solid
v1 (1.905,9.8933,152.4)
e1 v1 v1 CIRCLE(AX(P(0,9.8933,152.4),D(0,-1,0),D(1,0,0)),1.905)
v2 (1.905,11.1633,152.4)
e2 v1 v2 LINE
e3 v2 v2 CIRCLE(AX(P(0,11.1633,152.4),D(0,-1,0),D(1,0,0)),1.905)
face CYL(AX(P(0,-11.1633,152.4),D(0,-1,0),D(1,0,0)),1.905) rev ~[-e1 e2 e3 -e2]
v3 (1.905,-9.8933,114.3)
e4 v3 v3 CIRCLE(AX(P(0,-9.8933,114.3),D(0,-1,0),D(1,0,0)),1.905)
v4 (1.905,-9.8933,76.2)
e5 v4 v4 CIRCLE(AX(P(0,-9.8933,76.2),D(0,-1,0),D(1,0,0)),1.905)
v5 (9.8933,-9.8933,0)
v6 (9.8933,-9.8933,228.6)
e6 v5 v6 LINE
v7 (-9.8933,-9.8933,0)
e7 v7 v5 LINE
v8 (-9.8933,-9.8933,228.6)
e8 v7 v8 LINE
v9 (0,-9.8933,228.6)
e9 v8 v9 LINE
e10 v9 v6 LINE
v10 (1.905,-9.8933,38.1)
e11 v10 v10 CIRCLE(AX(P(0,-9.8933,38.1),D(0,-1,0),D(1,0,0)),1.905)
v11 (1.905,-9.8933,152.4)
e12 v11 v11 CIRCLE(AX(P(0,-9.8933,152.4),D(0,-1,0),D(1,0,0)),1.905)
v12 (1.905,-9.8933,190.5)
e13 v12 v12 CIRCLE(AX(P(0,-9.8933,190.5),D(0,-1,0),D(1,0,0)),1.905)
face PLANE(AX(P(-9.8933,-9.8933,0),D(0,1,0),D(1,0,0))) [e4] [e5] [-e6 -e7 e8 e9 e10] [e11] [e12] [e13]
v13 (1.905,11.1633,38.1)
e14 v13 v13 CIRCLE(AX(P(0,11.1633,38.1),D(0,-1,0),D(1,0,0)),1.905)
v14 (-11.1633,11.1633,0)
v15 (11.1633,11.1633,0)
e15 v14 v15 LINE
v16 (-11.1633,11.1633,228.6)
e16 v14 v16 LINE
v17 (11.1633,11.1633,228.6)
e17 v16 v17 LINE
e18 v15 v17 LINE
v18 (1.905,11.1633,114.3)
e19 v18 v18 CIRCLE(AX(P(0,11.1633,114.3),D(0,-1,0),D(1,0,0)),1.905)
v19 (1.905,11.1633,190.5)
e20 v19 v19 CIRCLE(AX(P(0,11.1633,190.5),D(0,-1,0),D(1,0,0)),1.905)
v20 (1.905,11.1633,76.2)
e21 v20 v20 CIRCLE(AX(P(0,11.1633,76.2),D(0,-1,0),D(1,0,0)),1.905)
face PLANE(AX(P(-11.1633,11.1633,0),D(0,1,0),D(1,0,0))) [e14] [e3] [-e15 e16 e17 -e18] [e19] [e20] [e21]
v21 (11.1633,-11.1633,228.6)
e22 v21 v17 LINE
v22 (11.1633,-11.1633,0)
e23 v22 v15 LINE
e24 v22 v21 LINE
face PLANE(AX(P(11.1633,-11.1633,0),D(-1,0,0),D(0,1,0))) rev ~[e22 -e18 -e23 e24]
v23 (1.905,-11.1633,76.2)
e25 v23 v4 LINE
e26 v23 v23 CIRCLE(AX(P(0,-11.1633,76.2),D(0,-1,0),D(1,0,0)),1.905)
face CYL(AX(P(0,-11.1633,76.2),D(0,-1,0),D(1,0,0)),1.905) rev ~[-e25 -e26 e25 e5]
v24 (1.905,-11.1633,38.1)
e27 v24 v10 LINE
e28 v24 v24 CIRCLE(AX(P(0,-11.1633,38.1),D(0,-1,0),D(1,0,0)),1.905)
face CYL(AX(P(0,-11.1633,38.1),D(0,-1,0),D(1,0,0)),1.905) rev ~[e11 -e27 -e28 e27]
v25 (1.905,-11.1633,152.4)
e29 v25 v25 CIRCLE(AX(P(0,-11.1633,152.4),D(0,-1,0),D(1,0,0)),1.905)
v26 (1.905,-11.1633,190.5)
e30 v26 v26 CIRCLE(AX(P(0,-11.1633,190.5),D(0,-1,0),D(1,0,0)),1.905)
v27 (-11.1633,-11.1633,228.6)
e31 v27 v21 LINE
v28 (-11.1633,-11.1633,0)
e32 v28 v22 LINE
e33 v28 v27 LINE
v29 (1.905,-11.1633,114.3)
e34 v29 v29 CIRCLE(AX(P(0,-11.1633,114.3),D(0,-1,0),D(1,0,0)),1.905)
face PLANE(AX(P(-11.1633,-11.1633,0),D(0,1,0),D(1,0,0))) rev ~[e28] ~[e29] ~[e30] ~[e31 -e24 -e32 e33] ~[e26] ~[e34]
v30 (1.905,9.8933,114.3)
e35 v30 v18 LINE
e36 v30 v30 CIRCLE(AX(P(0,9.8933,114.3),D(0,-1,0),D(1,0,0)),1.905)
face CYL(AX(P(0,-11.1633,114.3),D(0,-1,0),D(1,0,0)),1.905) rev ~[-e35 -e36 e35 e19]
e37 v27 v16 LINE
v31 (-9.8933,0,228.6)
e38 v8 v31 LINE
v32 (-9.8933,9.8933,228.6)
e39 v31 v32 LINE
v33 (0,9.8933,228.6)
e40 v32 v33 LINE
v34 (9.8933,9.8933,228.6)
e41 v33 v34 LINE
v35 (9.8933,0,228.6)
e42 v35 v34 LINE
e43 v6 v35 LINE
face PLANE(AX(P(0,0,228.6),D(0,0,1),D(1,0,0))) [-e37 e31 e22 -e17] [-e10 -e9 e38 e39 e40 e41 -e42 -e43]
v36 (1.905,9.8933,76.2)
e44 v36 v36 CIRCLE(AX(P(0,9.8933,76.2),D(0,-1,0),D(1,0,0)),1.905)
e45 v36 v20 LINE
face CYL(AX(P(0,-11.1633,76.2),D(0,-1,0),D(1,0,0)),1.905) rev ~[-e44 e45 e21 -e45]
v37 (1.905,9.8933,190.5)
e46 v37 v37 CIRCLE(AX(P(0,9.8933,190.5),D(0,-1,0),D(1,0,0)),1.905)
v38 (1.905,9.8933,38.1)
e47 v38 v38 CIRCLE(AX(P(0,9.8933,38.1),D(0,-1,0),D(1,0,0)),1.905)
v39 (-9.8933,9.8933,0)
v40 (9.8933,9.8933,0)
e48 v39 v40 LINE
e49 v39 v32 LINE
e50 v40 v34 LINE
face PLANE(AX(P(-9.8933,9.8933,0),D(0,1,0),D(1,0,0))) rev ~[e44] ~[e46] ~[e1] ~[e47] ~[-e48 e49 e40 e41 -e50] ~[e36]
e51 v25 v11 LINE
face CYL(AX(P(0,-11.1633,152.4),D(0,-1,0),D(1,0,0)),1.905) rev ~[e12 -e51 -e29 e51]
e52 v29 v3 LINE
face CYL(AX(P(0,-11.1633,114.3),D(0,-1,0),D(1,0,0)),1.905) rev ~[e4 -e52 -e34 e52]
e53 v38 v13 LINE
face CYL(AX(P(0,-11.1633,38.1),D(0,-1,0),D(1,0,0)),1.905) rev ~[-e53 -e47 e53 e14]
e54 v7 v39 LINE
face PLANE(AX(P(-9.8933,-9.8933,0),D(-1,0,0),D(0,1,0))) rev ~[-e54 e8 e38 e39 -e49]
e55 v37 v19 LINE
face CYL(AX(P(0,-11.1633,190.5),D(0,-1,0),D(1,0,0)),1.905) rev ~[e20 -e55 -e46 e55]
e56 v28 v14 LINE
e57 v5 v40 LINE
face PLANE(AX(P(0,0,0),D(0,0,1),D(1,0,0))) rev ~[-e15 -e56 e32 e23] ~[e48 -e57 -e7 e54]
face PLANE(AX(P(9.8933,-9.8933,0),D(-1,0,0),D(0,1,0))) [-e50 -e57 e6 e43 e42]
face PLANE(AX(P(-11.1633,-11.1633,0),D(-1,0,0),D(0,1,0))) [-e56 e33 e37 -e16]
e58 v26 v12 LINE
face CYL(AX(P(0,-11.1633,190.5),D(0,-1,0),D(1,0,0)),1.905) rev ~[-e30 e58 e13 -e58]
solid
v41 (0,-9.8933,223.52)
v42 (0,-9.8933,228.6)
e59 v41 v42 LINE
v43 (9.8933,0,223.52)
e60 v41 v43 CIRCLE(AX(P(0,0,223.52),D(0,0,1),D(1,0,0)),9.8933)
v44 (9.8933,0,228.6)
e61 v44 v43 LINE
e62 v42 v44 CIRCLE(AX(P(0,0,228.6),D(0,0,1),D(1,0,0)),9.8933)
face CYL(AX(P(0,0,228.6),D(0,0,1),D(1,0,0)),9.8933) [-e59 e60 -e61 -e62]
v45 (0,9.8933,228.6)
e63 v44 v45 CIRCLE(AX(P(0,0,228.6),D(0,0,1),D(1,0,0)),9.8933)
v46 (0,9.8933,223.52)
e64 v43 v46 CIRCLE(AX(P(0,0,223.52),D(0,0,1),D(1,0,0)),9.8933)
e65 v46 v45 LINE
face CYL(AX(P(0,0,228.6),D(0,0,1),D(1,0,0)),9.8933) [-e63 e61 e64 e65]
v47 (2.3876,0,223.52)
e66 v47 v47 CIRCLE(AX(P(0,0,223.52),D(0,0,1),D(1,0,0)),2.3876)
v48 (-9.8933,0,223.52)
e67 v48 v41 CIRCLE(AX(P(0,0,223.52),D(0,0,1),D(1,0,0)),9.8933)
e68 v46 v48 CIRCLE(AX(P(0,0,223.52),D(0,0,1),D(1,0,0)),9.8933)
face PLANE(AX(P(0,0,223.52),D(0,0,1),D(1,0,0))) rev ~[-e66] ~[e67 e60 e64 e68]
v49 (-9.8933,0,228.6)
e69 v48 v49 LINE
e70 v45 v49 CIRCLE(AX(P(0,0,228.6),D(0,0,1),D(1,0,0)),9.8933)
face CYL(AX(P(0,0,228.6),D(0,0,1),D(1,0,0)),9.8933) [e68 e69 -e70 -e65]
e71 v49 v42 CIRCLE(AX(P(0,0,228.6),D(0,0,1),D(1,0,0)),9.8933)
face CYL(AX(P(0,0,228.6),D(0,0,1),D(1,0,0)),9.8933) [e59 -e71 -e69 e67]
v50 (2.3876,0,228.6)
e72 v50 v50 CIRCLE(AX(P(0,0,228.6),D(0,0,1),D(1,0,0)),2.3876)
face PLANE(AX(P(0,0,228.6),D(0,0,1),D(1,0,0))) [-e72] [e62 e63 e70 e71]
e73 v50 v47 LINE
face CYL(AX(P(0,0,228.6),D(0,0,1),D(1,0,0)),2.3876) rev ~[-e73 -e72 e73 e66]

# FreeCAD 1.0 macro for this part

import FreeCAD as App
import Part
import Sketcher
from FreeCAD import Vector
Q = App.Units.Quantity

doc = App.newDocument("Part")
body = doc.addObject("PartDesign::Body", "Body")
body.AllowCompound = True

sketch1 = body.newObject("Sketcher::SketchObject", "Sketch")
sketch1.AttachmentSupport = (doc.getObject("XY_Plane"), [""])
sketch1.MapMode = "FlatFace"
sketch1.addGeometry(Part.LineSegment(Vector(-11.1633, 11.1633, 0), Vector(-11.1633, -11.1633, 0)), False)
sketch1.addGeometry(Part.LineSegment(Vector(-11.1633, -11.1633, 0), Vector(11.1633, -11.1633, 0)), False)
sketch1.addGeometry(Part.LineSegment(Vector(11.1633, -11.1633, 0), Vector(11.1633, 11.1633, 0)), False)
sketch1.addGeometry(Part.LineSegment(Vector(11.1633, 11.1633, 0), Vector(-11.1633, 11.1633, 0)), False)
sketch1.addGeometry(Part.LineSegment(Vector(9.8933, -9.8933, 0), Vector(-9.8933, -9.8933, 0)), False)
sketch1.addGeometry(Part.LineSegment(Vector(-9.8933, -9.8933, 0), Vector(-9.8933, 9.8933, 0)), False)
sketch1.addGeometry(Part.LineSegment(Vector(-9.8933, 9.8933, 0), Vector(9.8933, 9.8933, 0)), False)
sketch1.addGeometry(Part.LineSegment(Vector(9.8933, 9.8933, 0), Vector(9.8933, -9.8933, 0)), False)
sketch1.addConstraint(Sketcher.Constraint("Coincident", 0, 2, 1, 1))
sketch1.addConstraint(Sketcher.Constraint("Coincident", 1, 2, 2, 1))
sketch1.addConstraint(Sketcher.Constraint("Coincident", 2, 2, 3, 1))
sketch1.addConstraint(Sketcher.Constraint("Coincident", 3, 2, 0, 1))
sketch1.addConstraint(Sketcher.Constraint("Coincident", 4, 2, 5, 1))
sketch1.addConstraint(Sketcher.Constraint("Coincident", 5, 2, 6, 1))
sketch1.addConstraint(Sketcher.Constraint("Coincident", 6, 2, 7, 1))
sketch1.addConstraint(Sketcher.Constraint("Coincident", 7, 2, 4, 1))
sketch1.addConstraint(Sketcher.Constraint("Vertical", 0))
sketch1.addConstraint(Sketcher.Constraint("Horizontal", 1))
sketch1.addConstraint(Sketcher.Constraint("Vertical", 2))
sketch1.addConstraint(Sketcher.Constraint("Horizontal", 3))
sketch1.addConstraint(Sketcher.Constraint("Horizontal", 4))
sketch1.addConstraint(Sketcher.Constraint("Vertical", 5))
sketch1.addConstraint(Sketcher.Constraint("Horizontal", 6))
sketch1.addConstraint(Sketcher.Constraint("Vertical", 7))
sketch1.addConstraint(Sketcher.Constraint("Symmetric", 0, 2, 2, 2, -1, 1))
sketch1.addConstraint(Sketcher.Constraint("Symmetric", 4, 2, 6, 2, -1, 1))
sketch1.addConstraint(Sketcher.Constraint("Equal", 3, 0))
sketch1.addConstraint(Sketcher.Constraint("Equal", 6, 5))
sketch1.addConstraint(Sketcher.Constraint("DistanceX", 1, 1, 1, 2, Q("0.879 in")))
sketch1.addConstraint(Sketcher.Constraint("DistanceX", 4, 2, 4, 1, Q("0.779 in")))
pad1 = body.newObject("PartDesign::Pad", "Pad")
pad1.Profile = sketch1
pad1.Length = Q("9 in")

sketch2 = body.newObject("Sketcher::SketchObject", "Sketch001")
sketch2.AttachmentSupport = (doc.getObject("XZ_Plane"), [""])
sketch2.MapMode = "FlatFace"
sketch2.AttachmentOffset = App.Placement(Vector(0, 0, 0.4395 * 25.4), App.Rotation())
sketch2.addGeometry(Part.Circle(Vector(0, 38.1, 0), Vector(0, 0, 1), 1.905), False)
sketch2.addGeometry(Part.Circle(Vector(0, 76.2, 0), Vector(0, 0, 1), 1.905), False)
sketch2.addGeometry(Part.Circle(Vector(0, 114.3, 0), Vector(0, 0, 1), 1.905), False)
sketch2.addGeometry(Part.Circle(Vector(0, 152.4, 0), Vector(0, 0, 1), 1.905), False)
sketch2.addGeometry(Part.Circle(Vector(0, 190.5, 0), Vector(0, 0, 1), 1.905), False)
sketch2.addConstraint(Sketcher.Constraint("Equal", 0, 1))
sketch2.addConstraint(Sketcher.Constraint("Equal", 1, 2))
sketch2.addConstraint(Sketcher.Constraint("Equal", 2, 3))
sketch2.addConstraint(Sketcher.Constraint("Equal", 3, 4))
sketch2.addConstraint(Sketcher.Constraint("PointOnObject", 0, 3, -2))
sketch2.addConstraint(Sketcher.Constraint("PointOnObject", 1, 3, -2))
sketch2.addConstraint(Sketcher.Constraint("PointOnObject", 2, 3, -2))
sketch2.addConstraint(Sketcher.Constraint("PointOnObject", 3, 3, -2))
sketch2.addConstraint(Sketcher.Constraint("PointOnObject", 4, 3, -2))
sketch2.addConstraint(Sketcher.Constraint("Diameter", 0, Q("0.15 in")))
sketch2.addConstraint(Sketcher.Constraint("DistanceY", -1, 1, 1, 3, Q("3 in")))
sketch2.addConstraint(Sketcher.Constraint("DistanceY", -1, 1, 3, 3, Q("6 in")))
sketch2.addConstraint(Sketcher.Constraint("DistanceY", 0, 3, 2, 3, Q("3 in")))
sketch2.addConstraint(Sketcher.Constraint("DistanceY", 2, 3, 4, 3, Q("3 in")))
sketch2.addConstraint(Sketcher.Constraint("DistanceY", -1, 1, 0, 3, Q("1.5 in")))
pocket1 = body.newObject("PartDesign::Pocket", "Pocket")
pocket1.Profile = sketch2
pocket1.Type = "ThroughAll"

sketch3 = body.newObject("Sketcher::SketchObject", "Sketch002")
sketch3.AttachmentSupport = (doc.getObject("XY_Plane"), [""])
sketch3.MapMode = "FlatFace"
sketch3.AttachmentOffset = App.Placement(Vector(0, 0, 9 * 25.4), App.Rotation())
sketch3.addGeometry(Part.Circle(Vector(0, 0, 0), Vector(0, 0, 1), 9.8933), False)
sketch3.addGeometry(Part.Circle(Vector(0, 0, 0), Vector(0, 0, 1), 2.3876), False)
sketch3.addConstraint(Sketcher.Constraint("Coincident", 0, 3, -1, 1))
sketch3.addConstraint(Sketcher.Constraint("Coincident", 1, 3, -1, 1))
sketch3.addConstraint(Sketcher.Constraint("Diameter", 0, Q("0.779 in")))
sketch3.addConstraint(Sketcher.Constraint("Diameter", 1, Q("0.188 in")))
pad2 = body.newObject("PartDesign::Pad", "Pad001")
pad2.Profile = sketch3
pad2.Length = Q("0.2 in")
pad2.Reversed = True

doc.recompute()
